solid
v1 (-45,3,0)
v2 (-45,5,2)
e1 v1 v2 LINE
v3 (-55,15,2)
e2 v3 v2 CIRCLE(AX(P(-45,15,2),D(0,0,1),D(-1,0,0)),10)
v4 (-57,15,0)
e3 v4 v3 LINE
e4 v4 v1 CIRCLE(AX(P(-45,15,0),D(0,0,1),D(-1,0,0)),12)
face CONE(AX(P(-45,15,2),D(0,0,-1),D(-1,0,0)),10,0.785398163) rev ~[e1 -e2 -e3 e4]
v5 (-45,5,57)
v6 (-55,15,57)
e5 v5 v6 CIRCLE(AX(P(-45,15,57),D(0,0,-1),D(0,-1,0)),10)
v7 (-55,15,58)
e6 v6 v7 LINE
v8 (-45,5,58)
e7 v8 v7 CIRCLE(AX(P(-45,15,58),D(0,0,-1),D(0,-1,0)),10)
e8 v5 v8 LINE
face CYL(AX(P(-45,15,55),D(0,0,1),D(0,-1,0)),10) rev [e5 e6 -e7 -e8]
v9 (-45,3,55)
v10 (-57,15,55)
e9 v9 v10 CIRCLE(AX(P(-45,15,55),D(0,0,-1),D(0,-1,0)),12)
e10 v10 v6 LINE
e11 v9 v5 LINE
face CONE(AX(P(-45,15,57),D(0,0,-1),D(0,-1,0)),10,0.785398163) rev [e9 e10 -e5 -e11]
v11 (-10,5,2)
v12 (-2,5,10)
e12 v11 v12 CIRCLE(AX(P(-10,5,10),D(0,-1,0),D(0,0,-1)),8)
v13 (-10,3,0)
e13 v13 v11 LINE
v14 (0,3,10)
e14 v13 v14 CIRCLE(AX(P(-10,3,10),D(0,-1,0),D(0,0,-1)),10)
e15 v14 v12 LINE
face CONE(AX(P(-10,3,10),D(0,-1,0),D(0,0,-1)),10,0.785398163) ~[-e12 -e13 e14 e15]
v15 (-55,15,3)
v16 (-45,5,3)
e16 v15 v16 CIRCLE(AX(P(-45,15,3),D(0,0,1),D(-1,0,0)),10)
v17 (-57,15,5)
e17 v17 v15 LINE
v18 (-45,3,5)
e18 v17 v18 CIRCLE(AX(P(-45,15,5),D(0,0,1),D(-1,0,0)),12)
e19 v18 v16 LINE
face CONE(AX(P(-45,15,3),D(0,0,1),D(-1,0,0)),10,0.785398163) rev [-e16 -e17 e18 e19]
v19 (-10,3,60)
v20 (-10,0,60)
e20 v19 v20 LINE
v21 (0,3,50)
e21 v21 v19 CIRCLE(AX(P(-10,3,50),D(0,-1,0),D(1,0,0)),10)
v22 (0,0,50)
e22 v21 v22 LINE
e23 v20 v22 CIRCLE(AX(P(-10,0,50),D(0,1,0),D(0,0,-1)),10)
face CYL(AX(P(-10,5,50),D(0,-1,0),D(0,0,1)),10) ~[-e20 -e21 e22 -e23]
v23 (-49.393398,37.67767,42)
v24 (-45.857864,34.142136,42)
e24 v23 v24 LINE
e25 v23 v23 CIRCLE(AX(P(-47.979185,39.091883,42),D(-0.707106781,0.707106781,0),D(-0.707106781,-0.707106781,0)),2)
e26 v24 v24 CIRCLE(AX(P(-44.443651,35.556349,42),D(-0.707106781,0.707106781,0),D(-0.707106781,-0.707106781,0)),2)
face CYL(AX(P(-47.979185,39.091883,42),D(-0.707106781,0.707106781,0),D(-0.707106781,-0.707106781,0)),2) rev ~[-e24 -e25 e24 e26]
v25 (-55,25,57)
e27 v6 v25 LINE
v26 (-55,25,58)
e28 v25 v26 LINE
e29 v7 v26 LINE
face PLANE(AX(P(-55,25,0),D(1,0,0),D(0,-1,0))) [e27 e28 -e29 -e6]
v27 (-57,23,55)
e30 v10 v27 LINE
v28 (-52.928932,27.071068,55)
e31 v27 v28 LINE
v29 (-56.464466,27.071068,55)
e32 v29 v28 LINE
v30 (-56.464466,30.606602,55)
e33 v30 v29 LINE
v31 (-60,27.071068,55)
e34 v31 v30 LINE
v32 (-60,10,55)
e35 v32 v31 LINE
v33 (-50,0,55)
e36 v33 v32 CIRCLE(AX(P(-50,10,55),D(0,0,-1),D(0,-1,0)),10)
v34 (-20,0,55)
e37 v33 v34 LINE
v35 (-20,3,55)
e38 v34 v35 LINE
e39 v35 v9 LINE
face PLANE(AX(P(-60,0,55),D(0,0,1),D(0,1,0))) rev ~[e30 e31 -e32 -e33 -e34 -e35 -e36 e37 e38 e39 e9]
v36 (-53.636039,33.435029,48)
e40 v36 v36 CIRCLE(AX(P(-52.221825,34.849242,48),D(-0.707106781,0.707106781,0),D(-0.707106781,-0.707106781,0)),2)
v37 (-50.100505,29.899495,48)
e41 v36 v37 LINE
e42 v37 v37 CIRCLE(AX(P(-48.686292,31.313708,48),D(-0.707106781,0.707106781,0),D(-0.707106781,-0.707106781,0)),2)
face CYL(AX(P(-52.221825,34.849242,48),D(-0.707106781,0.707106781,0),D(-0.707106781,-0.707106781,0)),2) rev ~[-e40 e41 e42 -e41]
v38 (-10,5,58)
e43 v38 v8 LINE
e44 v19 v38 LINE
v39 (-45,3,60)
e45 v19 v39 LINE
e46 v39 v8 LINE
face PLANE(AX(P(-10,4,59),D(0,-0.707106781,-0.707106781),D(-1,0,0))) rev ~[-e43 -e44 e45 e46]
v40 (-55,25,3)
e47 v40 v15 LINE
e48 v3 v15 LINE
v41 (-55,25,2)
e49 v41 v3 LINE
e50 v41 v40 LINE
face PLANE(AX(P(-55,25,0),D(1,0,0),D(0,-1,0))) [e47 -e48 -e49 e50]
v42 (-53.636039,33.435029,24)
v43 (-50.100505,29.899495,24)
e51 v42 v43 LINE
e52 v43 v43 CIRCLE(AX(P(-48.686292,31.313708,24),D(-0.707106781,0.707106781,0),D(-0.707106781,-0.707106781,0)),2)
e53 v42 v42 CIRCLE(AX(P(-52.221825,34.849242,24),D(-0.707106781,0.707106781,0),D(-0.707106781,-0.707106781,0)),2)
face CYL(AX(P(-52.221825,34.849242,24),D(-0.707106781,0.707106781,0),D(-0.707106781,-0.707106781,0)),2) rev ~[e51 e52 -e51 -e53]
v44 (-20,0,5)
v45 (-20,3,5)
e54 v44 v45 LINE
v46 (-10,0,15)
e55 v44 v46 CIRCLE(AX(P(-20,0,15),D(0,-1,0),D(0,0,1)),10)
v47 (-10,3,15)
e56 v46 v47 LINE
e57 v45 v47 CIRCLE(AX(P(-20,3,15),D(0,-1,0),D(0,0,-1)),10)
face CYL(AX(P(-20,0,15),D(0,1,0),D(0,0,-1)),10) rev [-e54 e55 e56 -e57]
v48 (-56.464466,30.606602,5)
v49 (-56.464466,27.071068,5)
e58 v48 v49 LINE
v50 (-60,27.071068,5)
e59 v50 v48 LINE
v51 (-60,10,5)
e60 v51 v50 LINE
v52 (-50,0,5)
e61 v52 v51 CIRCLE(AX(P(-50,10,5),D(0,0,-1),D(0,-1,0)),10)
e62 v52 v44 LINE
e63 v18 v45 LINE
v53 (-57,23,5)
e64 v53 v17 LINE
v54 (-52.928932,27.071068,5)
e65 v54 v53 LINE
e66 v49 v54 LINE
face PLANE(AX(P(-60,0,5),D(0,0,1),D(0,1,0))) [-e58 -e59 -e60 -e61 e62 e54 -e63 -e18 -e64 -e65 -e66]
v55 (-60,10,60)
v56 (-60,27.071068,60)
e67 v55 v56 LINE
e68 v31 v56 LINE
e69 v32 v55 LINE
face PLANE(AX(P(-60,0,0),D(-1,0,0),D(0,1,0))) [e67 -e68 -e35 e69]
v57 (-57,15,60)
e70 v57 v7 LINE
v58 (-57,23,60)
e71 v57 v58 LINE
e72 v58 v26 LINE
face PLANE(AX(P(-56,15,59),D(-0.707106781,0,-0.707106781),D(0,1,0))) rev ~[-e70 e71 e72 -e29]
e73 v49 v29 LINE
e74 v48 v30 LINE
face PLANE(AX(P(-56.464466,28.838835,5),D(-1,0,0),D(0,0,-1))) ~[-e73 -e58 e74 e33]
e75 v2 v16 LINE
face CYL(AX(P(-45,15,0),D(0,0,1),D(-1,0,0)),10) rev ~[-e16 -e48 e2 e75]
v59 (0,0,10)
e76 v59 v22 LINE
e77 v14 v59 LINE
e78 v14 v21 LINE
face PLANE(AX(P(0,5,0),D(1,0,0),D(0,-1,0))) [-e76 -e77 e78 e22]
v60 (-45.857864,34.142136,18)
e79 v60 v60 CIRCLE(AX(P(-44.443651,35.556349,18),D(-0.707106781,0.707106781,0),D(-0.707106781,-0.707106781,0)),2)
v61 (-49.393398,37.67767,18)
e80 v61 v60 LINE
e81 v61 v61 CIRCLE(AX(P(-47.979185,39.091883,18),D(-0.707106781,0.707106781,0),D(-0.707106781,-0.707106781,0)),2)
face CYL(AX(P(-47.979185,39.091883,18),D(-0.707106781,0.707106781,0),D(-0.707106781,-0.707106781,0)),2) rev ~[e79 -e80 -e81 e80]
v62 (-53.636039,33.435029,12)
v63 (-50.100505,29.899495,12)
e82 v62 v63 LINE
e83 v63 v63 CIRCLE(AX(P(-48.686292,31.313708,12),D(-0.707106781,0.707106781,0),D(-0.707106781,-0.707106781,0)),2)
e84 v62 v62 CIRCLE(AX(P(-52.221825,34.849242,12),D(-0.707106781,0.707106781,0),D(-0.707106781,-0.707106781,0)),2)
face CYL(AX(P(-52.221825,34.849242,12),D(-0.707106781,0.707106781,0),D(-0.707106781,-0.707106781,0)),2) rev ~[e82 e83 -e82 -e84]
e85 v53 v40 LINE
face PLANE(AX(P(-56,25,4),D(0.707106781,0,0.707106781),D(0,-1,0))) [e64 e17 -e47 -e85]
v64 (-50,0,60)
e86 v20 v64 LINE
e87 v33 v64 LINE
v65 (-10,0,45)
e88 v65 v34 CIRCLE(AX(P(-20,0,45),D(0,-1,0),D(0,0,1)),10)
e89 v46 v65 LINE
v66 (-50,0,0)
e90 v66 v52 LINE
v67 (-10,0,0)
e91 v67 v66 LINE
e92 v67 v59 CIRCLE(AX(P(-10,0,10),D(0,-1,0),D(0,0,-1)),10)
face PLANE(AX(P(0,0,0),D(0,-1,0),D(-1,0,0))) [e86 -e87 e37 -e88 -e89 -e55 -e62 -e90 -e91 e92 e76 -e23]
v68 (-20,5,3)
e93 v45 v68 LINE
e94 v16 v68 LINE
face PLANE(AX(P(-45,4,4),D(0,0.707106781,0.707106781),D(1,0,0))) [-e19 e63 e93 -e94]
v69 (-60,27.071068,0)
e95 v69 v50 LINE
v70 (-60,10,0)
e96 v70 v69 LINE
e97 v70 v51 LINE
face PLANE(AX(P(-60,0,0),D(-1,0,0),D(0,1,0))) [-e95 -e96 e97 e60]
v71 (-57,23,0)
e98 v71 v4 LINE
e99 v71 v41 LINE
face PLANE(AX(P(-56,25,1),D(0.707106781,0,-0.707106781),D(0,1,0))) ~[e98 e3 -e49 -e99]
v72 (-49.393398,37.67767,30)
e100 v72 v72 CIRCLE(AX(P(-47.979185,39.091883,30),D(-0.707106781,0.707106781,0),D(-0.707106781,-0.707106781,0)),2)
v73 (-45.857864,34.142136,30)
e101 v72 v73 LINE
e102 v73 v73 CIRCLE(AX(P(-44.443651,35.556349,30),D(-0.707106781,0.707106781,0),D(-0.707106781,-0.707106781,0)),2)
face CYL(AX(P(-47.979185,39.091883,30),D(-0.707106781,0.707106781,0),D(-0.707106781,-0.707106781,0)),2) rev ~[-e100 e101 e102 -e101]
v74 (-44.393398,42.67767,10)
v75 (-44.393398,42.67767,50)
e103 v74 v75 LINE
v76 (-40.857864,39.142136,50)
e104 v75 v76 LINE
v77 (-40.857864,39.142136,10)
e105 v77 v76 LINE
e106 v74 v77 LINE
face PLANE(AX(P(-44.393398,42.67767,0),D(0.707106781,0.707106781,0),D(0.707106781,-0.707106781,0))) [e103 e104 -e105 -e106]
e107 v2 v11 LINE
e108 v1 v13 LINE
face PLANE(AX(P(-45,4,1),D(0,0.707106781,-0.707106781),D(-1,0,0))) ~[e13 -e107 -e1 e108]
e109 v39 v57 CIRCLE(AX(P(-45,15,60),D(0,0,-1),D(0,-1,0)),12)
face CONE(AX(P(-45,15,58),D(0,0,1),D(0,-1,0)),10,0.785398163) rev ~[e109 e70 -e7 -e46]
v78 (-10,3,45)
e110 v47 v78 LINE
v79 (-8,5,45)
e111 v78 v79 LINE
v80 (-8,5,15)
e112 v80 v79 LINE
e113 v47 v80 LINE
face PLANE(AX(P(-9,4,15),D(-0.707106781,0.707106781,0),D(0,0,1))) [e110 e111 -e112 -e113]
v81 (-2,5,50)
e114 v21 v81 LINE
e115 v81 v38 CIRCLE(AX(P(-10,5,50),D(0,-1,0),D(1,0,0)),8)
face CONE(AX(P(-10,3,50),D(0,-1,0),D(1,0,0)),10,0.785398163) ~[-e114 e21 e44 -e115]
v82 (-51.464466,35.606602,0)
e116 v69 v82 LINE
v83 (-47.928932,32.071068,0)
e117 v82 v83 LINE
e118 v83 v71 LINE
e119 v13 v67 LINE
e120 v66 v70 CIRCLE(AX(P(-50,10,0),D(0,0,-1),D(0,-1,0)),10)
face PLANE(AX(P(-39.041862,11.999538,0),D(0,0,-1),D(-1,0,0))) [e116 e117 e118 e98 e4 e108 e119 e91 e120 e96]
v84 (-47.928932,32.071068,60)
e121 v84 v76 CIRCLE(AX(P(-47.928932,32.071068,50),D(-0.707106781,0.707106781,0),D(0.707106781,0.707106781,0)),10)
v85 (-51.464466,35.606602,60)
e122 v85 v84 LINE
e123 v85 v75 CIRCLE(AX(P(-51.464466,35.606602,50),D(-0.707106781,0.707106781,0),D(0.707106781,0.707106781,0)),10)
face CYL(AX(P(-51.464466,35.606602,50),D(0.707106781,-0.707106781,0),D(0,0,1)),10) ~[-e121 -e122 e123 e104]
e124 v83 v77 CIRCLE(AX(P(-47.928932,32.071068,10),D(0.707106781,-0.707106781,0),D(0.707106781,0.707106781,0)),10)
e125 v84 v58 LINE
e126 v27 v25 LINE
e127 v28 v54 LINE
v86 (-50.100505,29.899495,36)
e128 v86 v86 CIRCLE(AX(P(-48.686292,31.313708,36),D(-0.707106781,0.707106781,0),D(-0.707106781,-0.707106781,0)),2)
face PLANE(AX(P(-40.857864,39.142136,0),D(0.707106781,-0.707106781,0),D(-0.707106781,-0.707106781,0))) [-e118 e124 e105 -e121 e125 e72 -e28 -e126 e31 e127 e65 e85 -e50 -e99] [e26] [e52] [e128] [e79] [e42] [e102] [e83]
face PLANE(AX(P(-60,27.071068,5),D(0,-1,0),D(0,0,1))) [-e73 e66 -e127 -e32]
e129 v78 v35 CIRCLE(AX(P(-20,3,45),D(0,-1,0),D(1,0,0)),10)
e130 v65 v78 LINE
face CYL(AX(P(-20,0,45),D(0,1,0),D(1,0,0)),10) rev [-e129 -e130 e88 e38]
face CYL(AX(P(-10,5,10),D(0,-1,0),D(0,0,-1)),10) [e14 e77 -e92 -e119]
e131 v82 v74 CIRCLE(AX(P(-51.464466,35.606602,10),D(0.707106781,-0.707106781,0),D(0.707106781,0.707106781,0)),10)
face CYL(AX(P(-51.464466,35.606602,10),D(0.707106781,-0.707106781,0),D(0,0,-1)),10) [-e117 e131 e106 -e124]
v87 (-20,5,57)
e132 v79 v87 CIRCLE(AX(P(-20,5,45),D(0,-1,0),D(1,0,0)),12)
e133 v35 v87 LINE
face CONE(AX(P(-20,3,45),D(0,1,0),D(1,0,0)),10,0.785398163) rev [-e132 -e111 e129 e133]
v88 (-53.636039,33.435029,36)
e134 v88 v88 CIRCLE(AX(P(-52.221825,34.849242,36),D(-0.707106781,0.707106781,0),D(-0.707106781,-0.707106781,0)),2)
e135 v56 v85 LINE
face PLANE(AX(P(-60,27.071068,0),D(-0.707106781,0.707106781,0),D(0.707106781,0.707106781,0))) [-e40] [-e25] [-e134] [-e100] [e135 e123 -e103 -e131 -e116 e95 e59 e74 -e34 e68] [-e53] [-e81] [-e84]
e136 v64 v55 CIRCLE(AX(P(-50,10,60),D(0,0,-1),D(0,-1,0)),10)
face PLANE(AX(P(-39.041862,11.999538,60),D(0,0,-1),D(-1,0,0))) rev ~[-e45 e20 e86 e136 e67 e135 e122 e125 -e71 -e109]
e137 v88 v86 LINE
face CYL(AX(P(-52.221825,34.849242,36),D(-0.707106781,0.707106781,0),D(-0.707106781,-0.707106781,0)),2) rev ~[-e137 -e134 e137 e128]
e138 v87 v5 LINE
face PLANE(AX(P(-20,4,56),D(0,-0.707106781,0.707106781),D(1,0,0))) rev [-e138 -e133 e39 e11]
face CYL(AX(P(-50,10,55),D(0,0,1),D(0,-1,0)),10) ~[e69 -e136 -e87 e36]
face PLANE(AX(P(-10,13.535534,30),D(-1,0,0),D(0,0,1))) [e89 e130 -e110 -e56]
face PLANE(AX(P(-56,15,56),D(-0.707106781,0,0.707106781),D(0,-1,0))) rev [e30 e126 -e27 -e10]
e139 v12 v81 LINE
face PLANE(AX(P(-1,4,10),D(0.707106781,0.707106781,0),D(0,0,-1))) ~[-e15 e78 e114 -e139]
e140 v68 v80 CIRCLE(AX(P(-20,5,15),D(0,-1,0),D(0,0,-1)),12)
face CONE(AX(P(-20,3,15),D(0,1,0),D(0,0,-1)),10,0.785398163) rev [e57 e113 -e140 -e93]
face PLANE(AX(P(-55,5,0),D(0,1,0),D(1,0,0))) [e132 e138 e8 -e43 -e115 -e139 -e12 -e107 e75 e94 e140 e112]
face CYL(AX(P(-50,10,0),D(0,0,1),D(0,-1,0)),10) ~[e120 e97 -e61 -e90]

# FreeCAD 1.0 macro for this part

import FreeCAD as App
import Part
import Sketcher

V = App.Vector
Q = App.Units.Quantity


def edges_at(feature, points):
    """Names of the edges that pass closest to the given points."""
    edges = feature.Shape.Edges
    near = lambda p: min(range(len(edges)), key=lambda i: edges[i].distToShape(Part.Vertex(*p))[0])
    return sorted({f"Edge{near(p) + 1}" for p in points})

doc = App.newDocument("Part")
body = doc.addObject("PartDesign::Body", "Body")

# Sketch on XY plane
sketch1 = doc.addObject("Sketcher::SketchObject", "Sketch")
body.addObject(sketch1)
sketch1.AttachmentSupport = (doc.XY_Plane, [""])
sketch1.MapMode = "FlatFace"
sketch1.addGeometry([
    Part.LineSegment(V(-60, 0, 0), V(0, 0, 0)),  # 0
    Part.LineSegment(V(0, 0, 0), V(0, 5, 0)),  # 1
    Part.LineSegment(V(0, 5, 0), V(-55, 5, 0)),  # 2
    Part.LineSegment(V(-55, 5, 0), V(-55, 25, 0)),  # 3
    Part.LineSegment(V(-55, 25, 0), V(-41, 39, 0)),  # 4
    Part.LineSegment(V(-41, 39, 0), V(-44, 43, 0)),  # 5
    Part.LineSegment(V(-44, 43, 0), V(-60, 27, 0)),  # 6
    Part.LineSegment(V(-60, 27, 0), V(-60, 0, 0)),  # 7
], False)
sketch1.addConstraint([
    Sketcher.Constraint("Coincident", 0, 2, 1, 1),
    Sketcher.Constraint("Coincident", 1, 2, 2, 1),
    Sketcher.Constraint("Coincident", 2, 2, 3, 1),
    Sketcher.Constraint("Coincident", 3, 2, 4, 1),
    Sketcher.Constraint("Coincident", 4, 2, 5, 1),
    Sketcher.Constraint("Coincident", 5, 2, 6, 1),
    Sketcher.Constraint("Coincident", 6, 2, 7, 1),
    Sketcher.Constraint("Coincident", 7, 2, 0, 1),
    Sketcher.Constraint("Horizontal", 0),
    Sketcher.Constraint("Vertical", 1),
    Sketcher.Constraint("Horizontal", 2),
    Sketcher.Constraint("Vertical", 3),
    Sketcher.Constraint("Vertical", 7),
    Sketcher.Constraint("Coincident", 0, 2, -1, 1),
    Sketcher.Constraint("Perpendicular", 4, 5),
    Sketcher.Constraint("Perpendicular", 5, 6),
    Sketcher.Constraint("DistanceX", 0, 1, 0, 2, 60.0),
    Sketcher.Constraint("DistanceX", 2, 2, 2, 1, 55.0),
    Sketcher.Constraint("DistanceY", 1, 1, 1, 2, 5.0),
    Sketcher.Constraint("DistanceY", 3, 1, 3, 2, 20.0),
    Sketcher.Constraint("Angle", 4, Q("45 deg")),
    Sketcher.Constraint("Distance", 4, 20.0),
    Sketcher.Constraint("Distance", 5, 5.0),
])
pad1 = doc.addObject("PartDesign::Pad", "Pad")
body.addObject(pad1)
pad1.Profile = sketch1
pad1.Length = 60

# Sketch on YZ plane
sketch2 = doc.addObject("Sketcher::SketchObject", "Sketch001")
body.addObject(sketch2)
sketch2.AttachmentSupport = (doc.YZ_Plane, [""])
sketch2.MapMode = "FlatFace"
sketch2.AttachmentOffset = App.Placement(V(0, 0, -60), App.Rotation())
sketch2.addGeometry([
    Part.LineSegment(V(27, 5, 0), V(0, 5, 0)),
    Part.LineSegment(V(0, 5, 0), V(0, 55, 0)),
    Part.LineSegment(V(0, 55, 0), V(27, 55, 0)),
    Part.LineSegment(V(27, 55, 0), V(27, 5, 0)),
], False)
sketch2.addConstraint([
    Sketcher.Constraint("Coincident", 0, 2, 1, 1),
    Sketcher.Constraint("Coincident", 1, 2, 2, 1),
    Sketcher.Constraint("Coincident", 2, 2, 3, 1),
    Sketcher.Constraint("Coincident", 3, 2, 0, 1),
    Sketcher.Constraint("Horizontal", 0),
    Sketcher.Constraint("Vertical", 1),
    Sketcher.Constraint("Horizontal", 2),
    Sketcher.Constraint("Vertical", 3),
    Sketcher.Constraint("PointOnObject", 0, 2, -2),
    Sketcher.Constraint("DistanceY", 1, 1, 1, 2, 50.0),
    Sketcher.Constraint("DistanceY", -1, 1, 0, 2, 5.0),
    Sketcher.Constraint("DistanceX", 0, 2, 0, 1, 27.071068),
])
pocket1 = doc.addObject("PartDesign::Pocket", "Pocket")
body.addObject(pocket1)
pocket1.Profile = sketch2
pocket1.Length = 50
pocket1.Reversed = True
doc.recompute()

fillet = doc.addObject("PartDesign::Fillet", "Fillet")
body.addObject(fillet)
fillet.Base = (pocket1, edges_at(pocket1, [
    (0, 2.5, 60),
    (-55, 5, 57.5),
    (-60, 0, 57.5),
    (-42.626, 40.91, 60),
    (-55, 5, 2.5),
    (-60, 0, 2.5),
    (-10, 2.5, 5),
    (-10, 2.5, 55),
    (-42.626, 40.91, 0),
    (0, 2.5, 0),
]))
fillet.Radius = 10
doc.recompute()

chamfer = doc.addObject("PartDesign::Chamfer", "Chamfer")
body.addObject(chamfer)
chamfer.Base = (fillet, edges_at(fillet, [
    (-55, 20, 5),
    (-10, 5, 30),
    (-32.5, 5, 5),
    (-55, 20, 55),
    (-32.5, 5, 55),
    (-55, 20, 0),
    (-27.5, 5, 0),
    (-27.5, 5, 60),
    (-55, 20, 60),
    (0, 5, 30),
    (-2.929, 5, 57.071),
    (-2.929, 5, 2.929),
    (-12.929, 5, 7.929),
    (-12.929, 5, 52.071),
    (-52.071, 7.929, 0),
    (-52.071, 7.929, 5),
    (-52.071, 7.929, 55),
    (-52.071, 7.929, 60),
]))
chamfer.Size = 2

# Sketch on an angled plane
sketch3 = doc.addObject("Sketcher::SketchObject", "Sketch002")
body.addObject(sketch3)
sketch3.Placement = App.Placement(V(-43.535534, 43.535534, 0), App.Rotation(V(0, 0, 1), V(0.707106781, 0.707106781, 0), V(-0.707106781, 0.707106781, 0), "ZXY"))
sketch3.addGeometry([
    Part.Circle(V(30, -6.3, 0), V(0, 0, 1), 2),  # 0
    Part.Circle(V(36, -12.3, 0), V(0, 0, 1), 2),  # 1
    Part.Circle(V(24, -12.3, 0), V(0, 0, 1), 2),  # 2
    Part.Circle(V(18, -6.3, 0), V(0, 0, 1), 2),  # 3
    Part.Circle(V(12, -12.3, 0), V(0, 0, 1), 2),  # 4
    Part.Circle(V(42, -6.3, 0), V(0, 0, 1), 2),  # 5
    Part.Circle(V(48, -12.3, 0), V(0, 0, 1), 2),  # 6
], False)
sketch3.addConstraint([
    Sketcher.Constraint("Equal", 0, 1),
    Sketcher.Constraint("Equal", 1, 2),
    Sketcher.Constraint("Equal", 2, 3),
    Sketcher.Constraint("Equal", 3, 4),
    Sketcher.Constraint("Equal", 4, 5),
    Sketcher.Constraint("Equal", 5, 6),
    Sketcher.Constraint("Horizontal", 1, 3, 2, 3),
    Sketcher.Constraint("Horizontal", 0, 3, 3, 3),
    Sketcher.Constraint("Horizontal", 2, 3, 4, 3),
    Sketcher.Constraint("Horizontal", 3, 3, 5, 3),
    Sketcher.Constraint("Horizontal", 4, 3, 6, 3),
    Sketcher.Constraint("Diameter", 0, 4.0),
    Sketcher.Constraint("DistanceX", -1, 1, 0, 3, 30.0),
    Sketcher.Constraint("DistanceX", -1, 1, 1, 3, 36.0),
    Sketcher.Constraint("DistanceX", -1, 1, 2, 3, 24.0),
    Sketcher.Constraint("DistanceX", -1, 1, 3, 3, 18.0),
    Sketcher.Constraint("DistanceX", -1, 1, 4, 3, 12.0),
    Sketcher.Constraint("DistanceX", -1, 1, 5, 3, 42.0),
    Sketcher.Constraint("DistanceX", -1, 1, 6, 3, 48.0),
    Sketcher.Constraint("DistanceY", 1, 3, 0, 3, 6.0),
    Sketcher.Constraint("DistanceY", 0, 3, -1, 1, 6.284271),
])
pocket2 = doc.addObject("PartDesign::Pocket", "Pocket001")
body.addObject(pocket2)
pocket2.Profile = sketch3
pocket2.Length = 30
doc.recompute()

chamfer2 = doc.addObject("PartDesign::Chamfer", "Chamfer001")
body.addObject(chamfer2)
chamfer2.Base = (pocket2, edges_at(pocket2, [(-60, 27.071, 30)]))
chamfer2.ChamferType = "Two distances"
chamfer2.Size = 5
chamfer2.Size2 = 3.535534

doc.recompute()
